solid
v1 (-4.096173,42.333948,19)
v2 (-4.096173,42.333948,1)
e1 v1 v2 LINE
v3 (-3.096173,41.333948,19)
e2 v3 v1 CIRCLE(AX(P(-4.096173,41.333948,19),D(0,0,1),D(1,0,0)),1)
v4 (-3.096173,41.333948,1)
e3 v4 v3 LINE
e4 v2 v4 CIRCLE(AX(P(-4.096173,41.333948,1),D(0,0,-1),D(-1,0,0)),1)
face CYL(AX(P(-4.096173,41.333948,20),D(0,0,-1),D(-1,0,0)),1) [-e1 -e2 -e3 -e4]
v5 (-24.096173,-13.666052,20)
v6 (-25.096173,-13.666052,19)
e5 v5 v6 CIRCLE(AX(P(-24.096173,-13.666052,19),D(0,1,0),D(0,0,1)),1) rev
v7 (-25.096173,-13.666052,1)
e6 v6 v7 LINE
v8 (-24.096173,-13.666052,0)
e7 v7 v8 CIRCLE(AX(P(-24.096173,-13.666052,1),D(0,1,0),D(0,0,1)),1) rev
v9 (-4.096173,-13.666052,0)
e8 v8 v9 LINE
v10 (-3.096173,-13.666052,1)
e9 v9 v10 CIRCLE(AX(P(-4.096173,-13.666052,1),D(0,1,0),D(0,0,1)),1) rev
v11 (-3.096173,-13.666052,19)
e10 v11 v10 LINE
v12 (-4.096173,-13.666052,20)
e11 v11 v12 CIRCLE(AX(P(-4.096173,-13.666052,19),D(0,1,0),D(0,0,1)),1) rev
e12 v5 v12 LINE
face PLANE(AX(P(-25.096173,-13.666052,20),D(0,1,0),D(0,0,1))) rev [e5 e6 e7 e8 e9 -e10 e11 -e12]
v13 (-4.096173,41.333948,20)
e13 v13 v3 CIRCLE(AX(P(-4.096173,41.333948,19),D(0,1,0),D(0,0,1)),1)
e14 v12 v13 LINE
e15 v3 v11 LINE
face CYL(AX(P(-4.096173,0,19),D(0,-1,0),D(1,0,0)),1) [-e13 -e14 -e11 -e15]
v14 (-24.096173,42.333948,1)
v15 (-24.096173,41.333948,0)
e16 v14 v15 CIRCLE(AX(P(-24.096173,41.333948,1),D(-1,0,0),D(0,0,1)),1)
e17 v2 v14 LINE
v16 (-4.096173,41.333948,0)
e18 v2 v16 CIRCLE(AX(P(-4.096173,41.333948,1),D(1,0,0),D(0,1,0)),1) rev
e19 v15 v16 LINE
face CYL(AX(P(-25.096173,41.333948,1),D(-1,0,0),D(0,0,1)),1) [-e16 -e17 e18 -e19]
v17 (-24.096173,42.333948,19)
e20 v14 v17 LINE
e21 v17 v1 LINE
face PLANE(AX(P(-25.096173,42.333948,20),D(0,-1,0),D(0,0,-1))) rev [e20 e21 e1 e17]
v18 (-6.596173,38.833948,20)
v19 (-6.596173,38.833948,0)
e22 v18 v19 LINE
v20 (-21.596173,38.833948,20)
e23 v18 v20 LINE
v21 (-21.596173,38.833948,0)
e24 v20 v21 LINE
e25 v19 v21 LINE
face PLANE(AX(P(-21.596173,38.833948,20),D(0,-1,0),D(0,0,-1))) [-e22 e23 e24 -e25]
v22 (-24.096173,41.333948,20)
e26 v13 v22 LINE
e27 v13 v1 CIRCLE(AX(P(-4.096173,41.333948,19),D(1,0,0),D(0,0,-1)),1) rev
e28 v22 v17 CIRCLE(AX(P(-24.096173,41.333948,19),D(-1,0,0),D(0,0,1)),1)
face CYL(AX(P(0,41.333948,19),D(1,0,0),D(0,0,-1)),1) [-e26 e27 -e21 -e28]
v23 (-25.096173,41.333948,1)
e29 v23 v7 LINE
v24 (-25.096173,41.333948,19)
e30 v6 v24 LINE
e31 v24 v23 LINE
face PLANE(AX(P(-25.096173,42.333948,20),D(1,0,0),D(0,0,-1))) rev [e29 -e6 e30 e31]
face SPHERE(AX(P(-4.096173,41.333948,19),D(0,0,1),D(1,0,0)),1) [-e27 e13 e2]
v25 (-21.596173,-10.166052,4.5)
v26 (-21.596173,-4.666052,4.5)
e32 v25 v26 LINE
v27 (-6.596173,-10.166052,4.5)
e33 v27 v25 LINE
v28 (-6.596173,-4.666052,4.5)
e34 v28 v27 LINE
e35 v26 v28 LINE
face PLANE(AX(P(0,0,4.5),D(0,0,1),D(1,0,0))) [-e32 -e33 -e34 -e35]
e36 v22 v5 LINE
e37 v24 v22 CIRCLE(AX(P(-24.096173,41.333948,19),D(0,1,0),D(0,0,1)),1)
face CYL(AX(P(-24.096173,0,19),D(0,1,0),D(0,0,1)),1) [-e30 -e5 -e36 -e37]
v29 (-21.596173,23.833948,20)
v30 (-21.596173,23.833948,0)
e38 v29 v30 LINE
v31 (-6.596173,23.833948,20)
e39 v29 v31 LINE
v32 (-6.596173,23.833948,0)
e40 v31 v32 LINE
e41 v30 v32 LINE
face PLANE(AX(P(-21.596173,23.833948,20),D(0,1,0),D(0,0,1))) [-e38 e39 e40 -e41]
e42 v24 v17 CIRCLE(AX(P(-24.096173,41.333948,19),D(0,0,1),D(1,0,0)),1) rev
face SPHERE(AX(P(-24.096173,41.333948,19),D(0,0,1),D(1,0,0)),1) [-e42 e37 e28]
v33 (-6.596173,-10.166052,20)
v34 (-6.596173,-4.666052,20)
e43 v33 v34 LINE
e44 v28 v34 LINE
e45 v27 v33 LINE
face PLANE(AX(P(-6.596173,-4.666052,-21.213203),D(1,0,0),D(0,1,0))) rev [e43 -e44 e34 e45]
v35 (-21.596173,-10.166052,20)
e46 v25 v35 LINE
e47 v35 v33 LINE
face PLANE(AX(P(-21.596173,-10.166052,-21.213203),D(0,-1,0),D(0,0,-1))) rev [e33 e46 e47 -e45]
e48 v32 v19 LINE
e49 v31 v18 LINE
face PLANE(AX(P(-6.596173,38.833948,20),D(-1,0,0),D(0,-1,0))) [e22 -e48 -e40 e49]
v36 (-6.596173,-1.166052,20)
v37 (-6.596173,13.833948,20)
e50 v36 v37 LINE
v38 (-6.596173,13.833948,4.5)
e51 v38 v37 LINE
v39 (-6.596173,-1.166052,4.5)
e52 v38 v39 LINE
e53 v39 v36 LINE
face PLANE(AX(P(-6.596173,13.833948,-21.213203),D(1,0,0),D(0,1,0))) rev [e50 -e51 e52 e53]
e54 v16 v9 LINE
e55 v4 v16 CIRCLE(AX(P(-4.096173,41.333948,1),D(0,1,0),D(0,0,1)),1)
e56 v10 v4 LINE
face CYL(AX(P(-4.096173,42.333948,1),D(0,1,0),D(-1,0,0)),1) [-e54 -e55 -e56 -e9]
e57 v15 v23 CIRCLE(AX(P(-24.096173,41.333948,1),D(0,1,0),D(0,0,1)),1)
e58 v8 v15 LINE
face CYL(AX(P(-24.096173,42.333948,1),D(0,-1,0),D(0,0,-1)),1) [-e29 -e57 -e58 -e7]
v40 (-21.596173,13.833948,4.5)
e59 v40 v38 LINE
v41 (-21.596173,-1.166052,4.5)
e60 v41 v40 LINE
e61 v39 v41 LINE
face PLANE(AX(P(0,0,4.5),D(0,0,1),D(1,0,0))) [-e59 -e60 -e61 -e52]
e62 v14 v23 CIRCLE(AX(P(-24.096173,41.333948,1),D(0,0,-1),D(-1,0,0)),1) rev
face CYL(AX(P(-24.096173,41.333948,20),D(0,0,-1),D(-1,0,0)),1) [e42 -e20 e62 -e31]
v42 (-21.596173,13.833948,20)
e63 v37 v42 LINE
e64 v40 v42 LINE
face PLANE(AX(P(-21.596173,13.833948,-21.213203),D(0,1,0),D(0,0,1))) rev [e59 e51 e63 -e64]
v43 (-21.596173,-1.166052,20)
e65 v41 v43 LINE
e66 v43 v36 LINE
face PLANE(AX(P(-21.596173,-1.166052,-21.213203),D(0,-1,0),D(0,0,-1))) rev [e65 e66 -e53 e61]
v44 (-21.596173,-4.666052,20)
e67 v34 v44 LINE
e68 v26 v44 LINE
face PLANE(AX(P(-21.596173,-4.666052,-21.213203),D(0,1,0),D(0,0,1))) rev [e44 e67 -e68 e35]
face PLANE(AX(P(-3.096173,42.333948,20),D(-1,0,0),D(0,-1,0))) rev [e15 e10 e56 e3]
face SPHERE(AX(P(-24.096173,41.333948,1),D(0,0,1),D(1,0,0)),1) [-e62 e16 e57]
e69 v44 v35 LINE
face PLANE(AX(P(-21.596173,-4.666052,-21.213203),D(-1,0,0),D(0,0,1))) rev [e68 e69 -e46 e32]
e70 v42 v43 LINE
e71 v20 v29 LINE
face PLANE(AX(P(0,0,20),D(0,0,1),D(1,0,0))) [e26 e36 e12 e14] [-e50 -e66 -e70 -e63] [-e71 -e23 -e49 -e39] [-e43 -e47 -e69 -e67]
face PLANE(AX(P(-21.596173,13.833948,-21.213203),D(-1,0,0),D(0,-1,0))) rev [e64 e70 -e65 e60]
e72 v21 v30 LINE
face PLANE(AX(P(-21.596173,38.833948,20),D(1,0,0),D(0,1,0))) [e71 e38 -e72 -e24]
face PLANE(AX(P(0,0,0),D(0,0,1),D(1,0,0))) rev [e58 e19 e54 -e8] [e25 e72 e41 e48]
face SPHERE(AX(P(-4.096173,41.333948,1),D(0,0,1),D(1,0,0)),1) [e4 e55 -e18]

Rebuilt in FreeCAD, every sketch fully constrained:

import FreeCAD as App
import Part
import Sketcher

V = App.Vector
Q = App.Units.Quantity


def edges_at(feature, points):
    """Names of the edges that pass closest to the given points."""
    edges = feature.Shape.Edges
    near = lambda p: min(range(len(edges)), key=lambda i: edges[i].distToShape(Part.Vertex(*p))[0])
    return sorted({f"Edge{near(p) + 1}" for p in points})

doc = App.newDocument("Part")
body = doc.addObject("PartDesign::Body", "Body")

sketch1 = body.newObject("Sketcher::SketchObject", "Sketch")
sketch1.AttachmentSupport = (doc.getObject("XY_Plane"), [""])
sketch1.MapMode = "FlatFace"
sketch1.addGeometry(Part.LineSegment(V(-25.096173, 42.333948, 0), V(-25.096173, -13.666052, 0)), False)
sketch1.addGeometry(Part.LineSegment(V(-25.096173, -13.666052, 0), V(-3.096173, -13.666052, 0)), False)
sketch1.addGeometry(Part.LineSegment(V(-3.096173, -13.666052, 0), V(-3.096173, 42.333948, 0)), False)
sketch1.addGeometry(Part.LineSegment(V(-3.096173, 42.333948, 0), V(-25.096173, 42.333948, 0)), False)
sketch1.addGeometry(Part.LineSegment(V(-6.596173, 23.833948, 0), V(-21.596173, 23.833948, 0)), False)
sketch1.addGeometry(Part.LineSegment(V(-21.596173, 23.833948, 0), V(-21.596173, 38.833948, 0)), False)
sketch1.addGeometry(Part.LineSegment(V(-21.596173, 38.833948, 0), V(-6.596173, 38.833948, 0)), False)
sketch1.addGeometry(Part.LineSegment(V(-6.596173, 38.833948, 0), V(-6.596173, 23.833948, 0)), False)
sketch1.addConstraint(Sketcher.Constraint("Coincident", 0, 2, 1, 1))
sketch1.addConstraint(Sketcher.Constraint("Coincident", 1, 2, 2, 1))
sketch1.addConstraint(Sketcher.Constraint("Coincident", 2, 2, 3, 1))
sketch1.addConstraint(Sketcher.Constraint("Coincident", 3, 2, 0, 1))
sketch1.addConstraint(Sketcher.Constraint("Coincident", 4, 2, 5, 1))
sketch1.addConstraint(Sketcher.Constraint("Coincident", 5, 2, 6, 1))
sketch1.addConstraint(Sketcher.Constraint("Coincident", 6, 2, 7, 1))
sketch1.addConstraint(Sketcher.Constraint("Coincident", 7, 2, 4, 1))
sketch1.addConstraint(Sketcher.Constraint("Vertical", 0))
sketch1.addConstraint(Sketcher.Constraint("Horizontal", 1))
sketch1.addConstraint(Sketcher.Constraint("Vertical", 2))
sketch1.addConstraint(Sketcher.Constraint("Horizontal", 3))
sketch1.addConstraint(Sketcher.Constraint("Horizontal", 4))
sketch1.addConstraint(Sketcher.Constraint("Vertical", 5))
sketch1.addConstraint(Sketcher.Constraint("Horizontal", 6))
sketch1.addConstraint(Sketcher.Constraint("Vertical", 7))
sketch1.addConstraint(Sketcher.Constraint("Equal", 6, 5))
sketch1.addConstraint(Sketcher.Constraint("DistanceX", 1, 1, 1, 2, Q("22 mm")))
sketch1.addConstraint(Sketcher.Constraint("DistanceX", 4, 2, 4, 1, Q("15 mm")))
sketch1.addConstraint(Sketcher.Constraint("DistanceY", 0, 2, 0, 1, Q("56 mm")))
sketch1.addConstraint(Sketcher.Constraint("DistanceX", 3, 2, 4, 2, Q("3.5 mm")))
sketch1.addConstraint(Sketcher.Constraint("DistanceY", 4, 2, 3, 2, Q("18.5 mm")))
sketch1.addConstraint(Sketcher.Constraint("DistanceX", 0, 2, -1, 1, Q("25.096173 mm")))
sketch1.addConstraint(Sketcher.Constraint("DistanceY", 0, 2, -1, 1, Q("13.666052 mm")))
pad1 = body.newObject("PartDesign::Pad", "Pad")
pad1.Profile = sketch1
pad1.Length = 20

sketch2 = body.newObject("Sketcher::SketchObject", "Sketch001")
sketch2.AttachmentSupport = (doc.getObject("XY_Plane"), [""])
sketch2.MapMode = "FlatFace"
sketch2.AttachmentOffset = App.Placement(V(0, 0, 20), App.Rotation())
sketch2.addGeometry(Part.LineSegment(V(-21.596173, 13.833948, 0), V(-21.596173, -1.166052, 0)), False)
sketch2.addGeometry(Part.LineSegment(V(-21.596173, -1.166052, 0), V(-6.596173, -1.166052, 0)), False)
sketch2.addGeometry(Part.LineSegment(V(-6.596173, -1.166052, 0), V(-6.596173, 13.833948, 0)), False)
sketch2.addGeometry(Part.LineSegment(V(-6.596173, 13.833948, 0), V(-21.596173, 13.833948, 0)), False)
sketch2.addGeometry(Part.LineSegment(V(-21.596173, -4.666052, 0), V(-21.596173, -10.166052, 0)), False)
sketch2.addGeometry(Part.LineSegment(V(-21.596173, -10.166052, 0), V(-6.596173, -10.166052, 0)), False)
sketch2.addGeometry(Part.LineSegment(V(-6.596173, -10.166052, 0), V(-6.596173, -4.666052, 0)), False)
sketch2.addGeometry(Part.LineSegment(V(-6.596173, -4.666052, 0), V(-21.596173, -4.666052, 0)), False)
sketch2.addConstraint(Sketcher.Constraint("Coincident", 0, 2, 1, 1))
sketch2.addConstraint(Sketcher.Constraint("Coincident", 1, 2, 2, 1))
sketch2.addConstraint(Sketcher.Constraint("Coincident", 2, 2, 3, 1))
sketch2.addConstraint(Sketcher.Constraint("Coincident", 3, 2, 0, 1))
sketch2.addConstraint(Sketcher.Constraint("Coincident", 4, 2, 5, 1))
sketch2.addConstraint(Sketcher.Constraint("Coincident", 5, 2, 6, 1))
sketch2.addConstraint(Sketcher.Constraint("Coincident", 6, 2, 7, 1))
sketch2.addConstraint(Sketcher.Constraint("Coincident", 7, 2, 4, 1))
sketch2.addConstraint(Sketcher.Constraint("Vertical", 0))
sketch2.addConstraint(Sketcher.Constraint("Horizontal", 1))
sketch2.addConstraint(Sketcher.Constraint("Vertical", 2))
sketch2.addConstraint(Sketcher.Constraint("Horizontal", 3))
sketch2.addConstraint(Sketcher.Constraint("Vertical", 4))
sketch2.addConstraint(Sketcher.Constraint("Horizontal", 5))
sketch2.addConstraint(Sketcher.Constraint("Vertical", 6))
sketch2.addConstraint(Sketcher.Constraint("Horizontal", 7))
sketch2.addConstraint(Sketcher.Constraint("Vertical", 3, 2, 4, 2))
sketch2.addConstraint(Sketcher.Constraint("Vertical", 2, 2, 5, 2))
sketch2.addConstraint(Sketcher.Constraint("Equal", 7, 0))
sketch2.addConstraint(Sketcher.Constraint("DistanceX", 1, 1, 1, 2, Q("15 mm")))
sketch2.addConstraint(Sketcher.Constraint("DistanceY", 4, 2, 4, 1, Q("5.5 mm")))
sketch2.addConstraint(Sketcher.Constraint("DistanceY", 4, 2, 0, 2, Q("9 mm")))
sketch2.addConstraint(Sketcher.Constraint("DistanceX", 0, 2, -1, 1, Q("21.596173 mm")))
sketch2.addConstraint(Sketcher.Constraint("DistanceY", 0, 2, -1, 1, Q("1.166052 mm")))
pocket1 = body.newObject("PartDesign::Pocket", "Pocket")
pocket1.Profile = sketch2
pocket1.Length = 15.5
doc.recompute()

fillet = body.newObject("PartDesign::Fillet", "Fillet")
fillet.Base = (pocket1, edges_at(pocket1, [
    (-3.096, 14.334, 20),
    (-14.096, 42.334, 20),
    (-25.096, 14.334, 20),
    (-14.096, 42.334, 0),
    (-3.096, 14.334, 0),
    (-25.096, 14.334, 0),
    (-25.096, 42.334, 10),
    (-3.096, 42.334, 10),
]))
fillet.Radius = 1

doc.recompute()
